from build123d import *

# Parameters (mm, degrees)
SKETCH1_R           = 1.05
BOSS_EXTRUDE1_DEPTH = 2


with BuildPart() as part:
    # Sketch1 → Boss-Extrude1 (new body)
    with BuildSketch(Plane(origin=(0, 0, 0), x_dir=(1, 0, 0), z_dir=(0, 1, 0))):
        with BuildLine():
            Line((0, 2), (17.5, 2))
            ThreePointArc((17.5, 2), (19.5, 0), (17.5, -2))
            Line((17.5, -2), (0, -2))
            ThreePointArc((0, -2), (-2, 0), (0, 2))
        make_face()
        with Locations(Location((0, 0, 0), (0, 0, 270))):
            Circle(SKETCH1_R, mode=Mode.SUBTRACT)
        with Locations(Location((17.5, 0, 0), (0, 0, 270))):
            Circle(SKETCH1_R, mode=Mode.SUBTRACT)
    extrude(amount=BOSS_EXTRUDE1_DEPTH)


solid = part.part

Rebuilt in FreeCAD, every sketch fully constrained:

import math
import FreeCAD as App
import Part
import Sketcher

V = App.Vector
Q = App.Units.Quantity

doc = App.newDocument("Part")
body = doc.addObject("PartDesign::Body", "Body")

# Sketch on XZ plane
sketch1 = body.newObject("Sketcher::SketchObject", "Sketch")
sketch1.AttachmentSupport = (doc.getObject("XZ_Plane"), [""])
sketch1.MapMode = "FlatFace"
sketch1.addGeometry([
    Part.LineSegment(V(17.5, -2, 0), V(0, -2, 0)),  # 0
    Part.ArcOfCircle(Part.Circle(V(0, 0, 0), V(0, 0, 1), 2), math.radians(90), math.radians(270)),  # 1
    Part.LineSegment(V(0, 2, 0), V(17.5, 2, 0)),  # 2
    Part.ArcOfCircle(Part.Circle(V(17.5, 0, 0), V(0, 0, 1), 2), math.radians(-90), math.radians(90)),  # 3
    Part.Circle(V(17.5, 0, 0), V(0, 0, 1), 1.1),  # 4
    Part.Circle(V(0, 0, 0), V(0, 0, 1), 1.1),  # 5
], False)
sketch1.addConstraint([
    Sketcher.Constraint("Tangent", 0, 2, 1, 2),
    Sketcher.Constraint("Tangent", 1, 1, 2, 1),
    Sketcher.Constraint("Tangent", 2, 2, 3, 2),
    Sketcher.Constraint("Tangent", 3, 1, 0, 1),
    Sketcher.Constraint("Horizontal", 0),
    Sketcher.Constraint("Horizontal", 2),
    Sketcher.Constraint("Coincident", 1, 3, -1, 1),
    Sketcher.Constraint("Coincident", 5, 3, -1, 1),
    Sketcher.Constraint("Coincident", 4, 3, 3, 3),
    Sketcher.Constraint("Equal", 4, 5),
    Sketcher.Constraint("Radius", 1, Q("2 mm")),
    Sketcher.Constraint("Diameter", 4, Q("2.1 mm")),
    Sketcher.Constraint("DistanceX", 0, 2, 0, 1, Q("17.5 mm")),
])
pad1 = body.newObject("PartDesign::Pad", "Pad")
pad1.Profile = sketch1
pad1.Length = 2
pad1.Reversed = True

doc.recompute()
